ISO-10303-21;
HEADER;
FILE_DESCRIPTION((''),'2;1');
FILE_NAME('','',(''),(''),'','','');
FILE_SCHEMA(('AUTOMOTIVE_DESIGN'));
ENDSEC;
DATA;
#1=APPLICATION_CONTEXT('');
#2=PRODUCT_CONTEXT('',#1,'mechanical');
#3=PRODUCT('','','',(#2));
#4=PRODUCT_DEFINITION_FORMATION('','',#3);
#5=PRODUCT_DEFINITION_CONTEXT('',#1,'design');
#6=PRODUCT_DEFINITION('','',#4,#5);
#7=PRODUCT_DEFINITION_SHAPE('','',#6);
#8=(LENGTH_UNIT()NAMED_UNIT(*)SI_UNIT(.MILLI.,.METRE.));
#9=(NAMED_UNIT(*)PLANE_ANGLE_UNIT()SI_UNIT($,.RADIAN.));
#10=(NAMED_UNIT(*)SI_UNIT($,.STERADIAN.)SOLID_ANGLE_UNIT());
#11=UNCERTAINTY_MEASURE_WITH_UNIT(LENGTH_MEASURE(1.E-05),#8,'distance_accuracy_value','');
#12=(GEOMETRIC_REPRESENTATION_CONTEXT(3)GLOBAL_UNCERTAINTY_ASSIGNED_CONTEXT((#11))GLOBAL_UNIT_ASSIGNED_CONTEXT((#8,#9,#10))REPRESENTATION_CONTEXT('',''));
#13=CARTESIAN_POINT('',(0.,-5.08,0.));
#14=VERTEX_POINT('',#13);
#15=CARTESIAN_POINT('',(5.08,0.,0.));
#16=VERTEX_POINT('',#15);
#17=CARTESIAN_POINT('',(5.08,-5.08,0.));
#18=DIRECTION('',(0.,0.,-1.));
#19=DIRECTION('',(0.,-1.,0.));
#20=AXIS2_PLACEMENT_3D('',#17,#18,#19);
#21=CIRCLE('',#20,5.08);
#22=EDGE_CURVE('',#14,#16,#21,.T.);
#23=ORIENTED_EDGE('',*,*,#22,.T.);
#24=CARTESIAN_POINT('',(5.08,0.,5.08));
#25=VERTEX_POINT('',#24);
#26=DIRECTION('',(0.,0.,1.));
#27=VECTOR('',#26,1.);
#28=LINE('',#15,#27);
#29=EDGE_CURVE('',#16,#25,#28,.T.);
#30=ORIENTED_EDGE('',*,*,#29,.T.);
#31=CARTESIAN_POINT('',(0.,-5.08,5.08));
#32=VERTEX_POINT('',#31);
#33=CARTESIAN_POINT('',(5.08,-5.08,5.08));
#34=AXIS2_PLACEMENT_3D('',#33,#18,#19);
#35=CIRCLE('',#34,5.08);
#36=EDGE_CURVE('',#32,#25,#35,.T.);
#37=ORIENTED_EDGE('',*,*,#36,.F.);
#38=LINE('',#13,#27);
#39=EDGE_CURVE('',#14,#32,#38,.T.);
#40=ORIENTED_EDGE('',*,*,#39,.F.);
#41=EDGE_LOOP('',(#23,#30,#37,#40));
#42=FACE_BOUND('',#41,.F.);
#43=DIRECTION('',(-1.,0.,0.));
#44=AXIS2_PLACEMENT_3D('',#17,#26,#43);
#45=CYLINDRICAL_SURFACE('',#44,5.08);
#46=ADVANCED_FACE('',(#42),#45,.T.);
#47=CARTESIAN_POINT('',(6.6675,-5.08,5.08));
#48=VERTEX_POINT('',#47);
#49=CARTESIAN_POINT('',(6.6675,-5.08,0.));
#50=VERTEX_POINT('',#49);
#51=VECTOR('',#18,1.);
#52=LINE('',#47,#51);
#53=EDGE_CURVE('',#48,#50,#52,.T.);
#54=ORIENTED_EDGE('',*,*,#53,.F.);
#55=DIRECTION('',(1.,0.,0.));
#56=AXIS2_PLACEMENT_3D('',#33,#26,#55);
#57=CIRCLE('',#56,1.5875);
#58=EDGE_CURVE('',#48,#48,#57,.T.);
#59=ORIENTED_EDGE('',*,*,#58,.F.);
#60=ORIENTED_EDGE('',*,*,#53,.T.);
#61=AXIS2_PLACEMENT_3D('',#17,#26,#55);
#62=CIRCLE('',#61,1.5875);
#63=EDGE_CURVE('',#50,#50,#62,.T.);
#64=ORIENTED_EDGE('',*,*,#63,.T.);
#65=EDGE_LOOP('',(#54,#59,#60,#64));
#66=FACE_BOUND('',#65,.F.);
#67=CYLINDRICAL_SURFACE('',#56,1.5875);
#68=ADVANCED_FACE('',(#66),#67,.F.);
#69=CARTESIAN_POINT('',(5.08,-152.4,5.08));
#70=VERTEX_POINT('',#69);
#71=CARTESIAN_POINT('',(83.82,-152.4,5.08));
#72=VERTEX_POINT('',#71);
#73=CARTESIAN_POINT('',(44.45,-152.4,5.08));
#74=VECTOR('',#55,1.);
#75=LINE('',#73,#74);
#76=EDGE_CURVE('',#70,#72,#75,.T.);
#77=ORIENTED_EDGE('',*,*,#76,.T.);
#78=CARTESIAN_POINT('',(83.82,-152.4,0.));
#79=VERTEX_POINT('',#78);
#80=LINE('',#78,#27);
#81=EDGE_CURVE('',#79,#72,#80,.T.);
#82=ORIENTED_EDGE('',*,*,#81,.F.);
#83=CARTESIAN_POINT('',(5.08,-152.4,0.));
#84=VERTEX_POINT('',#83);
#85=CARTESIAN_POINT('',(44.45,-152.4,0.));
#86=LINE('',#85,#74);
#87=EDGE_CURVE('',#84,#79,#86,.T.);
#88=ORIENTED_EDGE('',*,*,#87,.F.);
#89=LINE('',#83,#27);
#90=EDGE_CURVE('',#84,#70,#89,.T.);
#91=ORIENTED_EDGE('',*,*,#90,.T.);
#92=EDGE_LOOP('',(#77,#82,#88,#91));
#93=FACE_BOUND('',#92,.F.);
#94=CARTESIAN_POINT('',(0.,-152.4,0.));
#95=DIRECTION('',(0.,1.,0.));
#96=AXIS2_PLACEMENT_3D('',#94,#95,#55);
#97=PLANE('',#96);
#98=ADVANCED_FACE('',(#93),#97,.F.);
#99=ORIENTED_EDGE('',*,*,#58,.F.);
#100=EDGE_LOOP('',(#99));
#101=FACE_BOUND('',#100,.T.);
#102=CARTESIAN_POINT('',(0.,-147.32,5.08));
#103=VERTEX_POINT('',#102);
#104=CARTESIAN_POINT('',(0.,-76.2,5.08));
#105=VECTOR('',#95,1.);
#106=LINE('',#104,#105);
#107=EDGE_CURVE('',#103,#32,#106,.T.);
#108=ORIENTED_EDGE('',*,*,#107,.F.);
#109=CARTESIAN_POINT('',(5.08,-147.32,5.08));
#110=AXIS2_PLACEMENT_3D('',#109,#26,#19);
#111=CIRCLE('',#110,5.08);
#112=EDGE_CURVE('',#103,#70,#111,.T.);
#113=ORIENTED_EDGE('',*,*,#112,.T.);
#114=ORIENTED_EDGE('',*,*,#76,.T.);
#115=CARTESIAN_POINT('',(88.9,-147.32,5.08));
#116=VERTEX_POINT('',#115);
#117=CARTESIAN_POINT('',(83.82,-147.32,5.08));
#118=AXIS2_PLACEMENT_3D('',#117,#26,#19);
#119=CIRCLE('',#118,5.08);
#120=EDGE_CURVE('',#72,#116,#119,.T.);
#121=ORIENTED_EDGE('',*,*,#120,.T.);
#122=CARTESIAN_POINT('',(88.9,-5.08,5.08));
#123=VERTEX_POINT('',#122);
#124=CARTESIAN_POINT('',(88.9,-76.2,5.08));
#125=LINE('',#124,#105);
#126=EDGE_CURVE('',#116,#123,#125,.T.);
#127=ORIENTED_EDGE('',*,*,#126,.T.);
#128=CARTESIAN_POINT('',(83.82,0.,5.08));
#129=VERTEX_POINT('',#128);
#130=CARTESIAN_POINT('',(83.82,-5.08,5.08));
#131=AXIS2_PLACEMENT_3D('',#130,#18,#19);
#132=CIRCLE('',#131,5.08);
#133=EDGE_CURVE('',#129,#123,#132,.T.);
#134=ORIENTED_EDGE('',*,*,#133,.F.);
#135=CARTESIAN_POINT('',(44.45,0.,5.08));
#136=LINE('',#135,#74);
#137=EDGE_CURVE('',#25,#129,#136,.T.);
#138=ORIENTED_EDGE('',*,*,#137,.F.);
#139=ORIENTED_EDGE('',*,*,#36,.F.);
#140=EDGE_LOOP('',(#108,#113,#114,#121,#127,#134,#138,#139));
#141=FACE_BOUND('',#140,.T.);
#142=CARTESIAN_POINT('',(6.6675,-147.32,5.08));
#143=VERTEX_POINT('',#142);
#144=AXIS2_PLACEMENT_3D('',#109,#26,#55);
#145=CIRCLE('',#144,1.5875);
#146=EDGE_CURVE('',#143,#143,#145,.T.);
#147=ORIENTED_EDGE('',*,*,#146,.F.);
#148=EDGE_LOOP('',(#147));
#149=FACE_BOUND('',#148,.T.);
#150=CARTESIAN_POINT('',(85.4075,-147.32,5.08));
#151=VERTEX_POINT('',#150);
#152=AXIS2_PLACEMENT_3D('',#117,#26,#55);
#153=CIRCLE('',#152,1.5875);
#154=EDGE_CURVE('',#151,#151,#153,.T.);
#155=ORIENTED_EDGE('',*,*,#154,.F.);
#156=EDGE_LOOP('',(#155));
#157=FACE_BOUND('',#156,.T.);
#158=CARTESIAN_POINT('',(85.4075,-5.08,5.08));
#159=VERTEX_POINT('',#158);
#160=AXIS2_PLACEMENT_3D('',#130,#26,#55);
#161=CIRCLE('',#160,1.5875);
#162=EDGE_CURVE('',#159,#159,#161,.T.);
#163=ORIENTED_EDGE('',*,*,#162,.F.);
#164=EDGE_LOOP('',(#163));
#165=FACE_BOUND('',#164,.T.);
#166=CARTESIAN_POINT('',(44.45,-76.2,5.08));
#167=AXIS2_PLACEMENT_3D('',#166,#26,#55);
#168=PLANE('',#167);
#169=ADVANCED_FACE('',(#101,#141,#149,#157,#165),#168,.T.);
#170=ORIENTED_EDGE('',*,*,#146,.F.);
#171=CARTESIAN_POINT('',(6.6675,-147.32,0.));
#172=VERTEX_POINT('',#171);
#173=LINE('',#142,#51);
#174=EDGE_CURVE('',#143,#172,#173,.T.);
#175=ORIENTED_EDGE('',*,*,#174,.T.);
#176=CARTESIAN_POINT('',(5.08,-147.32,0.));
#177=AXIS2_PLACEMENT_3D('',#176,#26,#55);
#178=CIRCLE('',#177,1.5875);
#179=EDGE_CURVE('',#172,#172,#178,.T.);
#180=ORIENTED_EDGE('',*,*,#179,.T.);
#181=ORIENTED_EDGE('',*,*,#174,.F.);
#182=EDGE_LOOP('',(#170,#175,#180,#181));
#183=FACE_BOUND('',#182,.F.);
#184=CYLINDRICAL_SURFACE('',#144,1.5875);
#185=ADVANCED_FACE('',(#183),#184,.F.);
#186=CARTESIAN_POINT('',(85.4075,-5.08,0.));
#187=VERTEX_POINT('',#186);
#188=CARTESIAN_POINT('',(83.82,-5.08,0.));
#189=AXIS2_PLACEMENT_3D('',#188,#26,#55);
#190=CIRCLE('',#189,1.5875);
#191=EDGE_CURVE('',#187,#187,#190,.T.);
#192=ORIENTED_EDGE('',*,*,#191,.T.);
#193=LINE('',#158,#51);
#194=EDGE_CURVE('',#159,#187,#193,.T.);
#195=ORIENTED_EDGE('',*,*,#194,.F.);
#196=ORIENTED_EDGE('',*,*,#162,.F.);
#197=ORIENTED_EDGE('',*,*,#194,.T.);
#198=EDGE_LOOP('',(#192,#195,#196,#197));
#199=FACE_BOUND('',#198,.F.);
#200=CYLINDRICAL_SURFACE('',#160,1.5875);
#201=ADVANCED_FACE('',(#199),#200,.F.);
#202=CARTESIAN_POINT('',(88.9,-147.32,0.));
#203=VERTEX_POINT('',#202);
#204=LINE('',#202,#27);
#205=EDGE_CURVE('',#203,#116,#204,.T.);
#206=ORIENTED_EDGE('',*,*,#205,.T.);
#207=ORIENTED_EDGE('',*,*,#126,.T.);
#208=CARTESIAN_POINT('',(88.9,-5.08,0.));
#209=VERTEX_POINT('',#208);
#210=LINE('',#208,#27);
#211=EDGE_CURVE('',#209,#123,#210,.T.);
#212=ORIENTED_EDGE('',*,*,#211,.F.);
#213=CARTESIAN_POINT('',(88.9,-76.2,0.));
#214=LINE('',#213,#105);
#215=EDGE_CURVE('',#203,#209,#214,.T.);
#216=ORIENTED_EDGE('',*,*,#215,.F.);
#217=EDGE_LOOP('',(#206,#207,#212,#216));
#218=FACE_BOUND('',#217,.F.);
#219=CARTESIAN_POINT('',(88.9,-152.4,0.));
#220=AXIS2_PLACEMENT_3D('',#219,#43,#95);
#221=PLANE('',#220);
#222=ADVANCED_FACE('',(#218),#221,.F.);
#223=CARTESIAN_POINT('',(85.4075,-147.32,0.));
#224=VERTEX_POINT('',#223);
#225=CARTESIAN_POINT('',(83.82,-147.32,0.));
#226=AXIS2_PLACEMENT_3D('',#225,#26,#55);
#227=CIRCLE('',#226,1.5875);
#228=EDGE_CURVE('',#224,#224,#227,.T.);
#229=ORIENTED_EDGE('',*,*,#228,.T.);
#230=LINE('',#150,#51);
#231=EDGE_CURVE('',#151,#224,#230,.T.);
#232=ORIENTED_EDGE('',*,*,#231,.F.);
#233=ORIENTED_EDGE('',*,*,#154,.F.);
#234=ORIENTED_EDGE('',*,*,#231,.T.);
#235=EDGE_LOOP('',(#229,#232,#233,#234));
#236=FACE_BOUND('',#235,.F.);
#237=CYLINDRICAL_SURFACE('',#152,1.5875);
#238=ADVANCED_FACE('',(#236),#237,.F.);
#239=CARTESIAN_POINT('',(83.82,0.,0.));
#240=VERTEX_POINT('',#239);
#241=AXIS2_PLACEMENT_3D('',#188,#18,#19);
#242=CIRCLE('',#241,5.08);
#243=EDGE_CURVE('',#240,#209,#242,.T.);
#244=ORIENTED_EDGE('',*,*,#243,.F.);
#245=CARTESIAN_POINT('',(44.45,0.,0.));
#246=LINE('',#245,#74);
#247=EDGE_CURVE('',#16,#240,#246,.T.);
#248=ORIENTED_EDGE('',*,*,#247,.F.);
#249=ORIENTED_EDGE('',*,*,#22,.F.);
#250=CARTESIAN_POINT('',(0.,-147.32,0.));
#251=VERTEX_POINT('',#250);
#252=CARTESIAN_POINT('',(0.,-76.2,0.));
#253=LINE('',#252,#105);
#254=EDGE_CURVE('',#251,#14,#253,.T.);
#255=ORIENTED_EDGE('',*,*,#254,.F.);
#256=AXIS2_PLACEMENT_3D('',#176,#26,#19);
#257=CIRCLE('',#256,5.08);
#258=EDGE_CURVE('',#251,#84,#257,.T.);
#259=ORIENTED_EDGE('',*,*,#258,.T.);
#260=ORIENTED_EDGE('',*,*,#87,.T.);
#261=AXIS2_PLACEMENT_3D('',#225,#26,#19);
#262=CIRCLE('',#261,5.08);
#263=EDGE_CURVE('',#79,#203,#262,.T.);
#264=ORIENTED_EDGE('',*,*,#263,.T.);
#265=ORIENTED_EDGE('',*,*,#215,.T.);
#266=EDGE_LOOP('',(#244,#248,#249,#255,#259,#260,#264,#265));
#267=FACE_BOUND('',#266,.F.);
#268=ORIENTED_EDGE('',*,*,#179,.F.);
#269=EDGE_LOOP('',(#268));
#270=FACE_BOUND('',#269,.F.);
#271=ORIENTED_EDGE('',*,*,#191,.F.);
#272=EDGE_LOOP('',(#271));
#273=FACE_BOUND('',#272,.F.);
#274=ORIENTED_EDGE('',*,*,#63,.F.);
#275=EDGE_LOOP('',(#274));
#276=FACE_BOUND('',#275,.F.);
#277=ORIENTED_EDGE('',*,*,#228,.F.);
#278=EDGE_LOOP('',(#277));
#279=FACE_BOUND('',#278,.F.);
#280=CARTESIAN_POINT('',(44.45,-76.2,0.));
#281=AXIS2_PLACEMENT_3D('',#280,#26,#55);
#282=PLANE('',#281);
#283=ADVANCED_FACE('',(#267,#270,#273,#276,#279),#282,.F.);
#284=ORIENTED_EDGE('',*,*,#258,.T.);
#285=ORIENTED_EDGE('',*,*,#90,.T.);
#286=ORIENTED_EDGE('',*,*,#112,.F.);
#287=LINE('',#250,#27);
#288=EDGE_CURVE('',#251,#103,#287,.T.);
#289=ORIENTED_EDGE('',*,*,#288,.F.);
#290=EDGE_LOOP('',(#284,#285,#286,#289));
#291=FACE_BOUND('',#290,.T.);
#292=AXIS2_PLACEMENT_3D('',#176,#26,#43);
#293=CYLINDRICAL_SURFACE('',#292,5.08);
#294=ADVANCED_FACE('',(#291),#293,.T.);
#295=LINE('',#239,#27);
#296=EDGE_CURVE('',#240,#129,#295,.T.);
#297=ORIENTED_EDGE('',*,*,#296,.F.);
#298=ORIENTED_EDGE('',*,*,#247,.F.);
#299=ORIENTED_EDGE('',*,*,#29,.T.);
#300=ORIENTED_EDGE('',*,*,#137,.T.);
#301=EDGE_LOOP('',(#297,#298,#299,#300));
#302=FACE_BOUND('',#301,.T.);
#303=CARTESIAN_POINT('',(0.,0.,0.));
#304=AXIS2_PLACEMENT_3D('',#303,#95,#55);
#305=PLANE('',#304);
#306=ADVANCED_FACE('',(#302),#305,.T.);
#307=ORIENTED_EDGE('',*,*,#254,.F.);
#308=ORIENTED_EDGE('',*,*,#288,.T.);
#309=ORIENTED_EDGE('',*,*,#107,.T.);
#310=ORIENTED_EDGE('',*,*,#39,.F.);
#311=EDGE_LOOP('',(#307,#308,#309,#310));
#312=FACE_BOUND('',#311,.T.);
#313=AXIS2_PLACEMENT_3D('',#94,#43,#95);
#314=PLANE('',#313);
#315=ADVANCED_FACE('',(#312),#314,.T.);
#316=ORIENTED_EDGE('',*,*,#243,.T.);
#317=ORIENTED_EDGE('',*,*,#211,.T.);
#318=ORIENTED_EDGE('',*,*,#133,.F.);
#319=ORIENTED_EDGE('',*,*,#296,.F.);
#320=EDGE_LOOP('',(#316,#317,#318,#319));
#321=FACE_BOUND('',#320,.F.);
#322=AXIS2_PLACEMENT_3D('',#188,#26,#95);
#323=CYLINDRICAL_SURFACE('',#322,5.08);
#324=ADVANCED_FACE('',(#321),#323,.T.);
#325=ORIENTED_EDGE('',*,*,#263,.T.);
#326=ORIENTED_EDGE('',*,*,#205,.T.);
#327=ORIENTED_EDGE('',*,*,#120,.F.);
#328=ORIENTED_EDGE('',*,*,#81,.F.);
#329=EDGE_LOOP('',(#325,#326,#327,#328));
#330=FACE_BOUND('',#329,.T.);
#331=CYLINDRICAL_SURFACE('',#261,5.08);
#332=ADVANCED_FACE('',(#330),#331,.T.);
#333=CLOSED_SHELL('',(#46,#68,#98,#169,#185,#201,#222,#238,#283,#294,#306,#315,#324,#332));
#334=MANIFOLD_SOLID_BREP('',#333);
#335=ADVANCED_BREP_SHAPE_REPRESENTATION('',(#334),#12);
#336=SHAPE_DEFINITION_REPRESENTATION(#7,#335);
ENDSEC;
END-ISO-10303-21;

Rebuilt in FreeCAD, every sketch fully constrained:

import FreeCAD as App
import Part
import Sketcher

V = App.Vector
Q = App.Units.Quantity


def edges_at(feature, points):
    """Names of the edges that pass closest to the given points."""
    edges = feature.Shape.Edges
    near = lambda p: min(range(len(edges)), key=lambda i: edges[i].distToShape(Part.Vertex(*p))[0])
    return sorted({f"Edge{near(p) + 1}" for p in points})

doc = App.newDocument("Part")
body = doc.addObject("PartDesign::Body", "Body")

sketch1 = doc.addObject("Sketcher::SketchObject", "Sketch")
body.addObject(sketch1)
sketch1.AttachmentSupport = (doc.XY_Plane, [""])
sketch1.MapMode = "FlatFace"
sketch1.addGeometry([
    Part.LineSegment(V(0, 0, 0), V(0, -152, 0)),
    Part.LineSegment(V(0, -152, 0), V(89, -152, 0)),
    Part.LineSegment(V(89, -152, 0), V(89, 0, 0)),
    Part.LineSegment(V(89, 0, 0), V(0, 0, 0)),
], False)
sketch1.addConstraint([
    Sketcher.Constraint("Coincident", 0, 2, 1, 1),
    Sketcher.Constraint("Coincident", 1, 2, 2, 1),
    Sketcher.Constraint("Coincident", 2, 2, 3, 1),
    Sketcher.Constraint("Coincident", 3, 2, 0, 1),
    Sketcher.Constraint("Vertical", 0),
    Sketcher.Constraint("Horizontal", 1),
    Sketcher.Constraint("Vertical", 2),
    Sketcher.Constraint("Horizontal", 3),
    Sketcher.Constraint("Coincident", 3, 2, -1, 1),
    Sketcher.Constraint("DistanceY", 0, 2, 0, 1, Q("6 in")),
    Sketcher.Constraint("DistanceX", 1, 1, 1, 2, Q("3.5 in")),
])
pad1 = doc.addObject("PartDesign::Pad", "Pad")
body.addObject(pad1)
pad1.Profile = sketch1
pad1.Length = Q("0.2 in")

sketch2 = doc.addObject("Sketcher::SketchObject", "Sketch001")
body.addObject(sketch2)
sketch2.AttachmentSupport = (doc.XY_Plane, [""])
sketch2.MapMode = "FlatFace"
sketch2.AttachmentOffset = App.Placement(V(0, 0, 0.2 * 25.4), App.Rotation())
sketch2.addGeometry([
    Part.Circle(V(5.1, -5.1, 0), V(0, 0, 1), 1.6),
    Part.Circle(V(83.8, -5.1, 0), V(0, 0, 1), 1.6),
    Part.Circle(V(83.8, -147.3, 0), V(0, 0, 1), 1.6),
    Part.Circle(V(5.1, -147.3, 0), V(0, 0, 1), 1.6),
], False)
sketch2.addConstraint([
    Sketcher.Constraint("Equal", 0, 1),
    Sketcher.Constraint("Equal", 1, 2),
    Sketcher.Constraint("Equal", 2, 3),
    Sketcher.Constraint("Horizontal", 0, 3, 1, 3),
    Sketcher.Constraint("Horizontal", 2, 3, 3, 3),
    Sketcher.Constraint("Vertical", 1, 3, 2, 3),
    Sketcher.Constraint("Vertical", 0, 3, 3, 3),
    Sketcher.Constraint("Diameter", 0, Q("0.125 in")),
    Sketcher.Constraint("DistanceX", -1, 1, 0, 3, Q("0.2 in")),
    Sketcher.Constraint("DistanceY", 0, 3, -1, 1, Q("0.2 in")),
    Sketcher.Constraint("DistanceX", -1, 1, 1, 3, Q("3.3 in")),
    Sketcher.Constraint("DistanceY", 2, 3, -1, 1, Q("5.8 in")),
])
pocket1 = doc.addObject("PartDesign::Pocket", "Pocket")
body.addObject(pocket1)
pocket1.Profile = sketch2
pocket1.Length = Q("1 in")
doc.recompute()

fillet = doc.addObject("PartDesign::Fillet", "Fillet")
body.addObject(fillet)
fillet.Base = (pocket1, edges_at(pocket1, [
    (0, -152.4, 2.54),
    (88.9, -152.4, 2.54),
    (88.9, 0, 2.54),
    (0, 0, 2.54),
]))
fillet.Radius = Q("0.2 in")

doc.recompute()
